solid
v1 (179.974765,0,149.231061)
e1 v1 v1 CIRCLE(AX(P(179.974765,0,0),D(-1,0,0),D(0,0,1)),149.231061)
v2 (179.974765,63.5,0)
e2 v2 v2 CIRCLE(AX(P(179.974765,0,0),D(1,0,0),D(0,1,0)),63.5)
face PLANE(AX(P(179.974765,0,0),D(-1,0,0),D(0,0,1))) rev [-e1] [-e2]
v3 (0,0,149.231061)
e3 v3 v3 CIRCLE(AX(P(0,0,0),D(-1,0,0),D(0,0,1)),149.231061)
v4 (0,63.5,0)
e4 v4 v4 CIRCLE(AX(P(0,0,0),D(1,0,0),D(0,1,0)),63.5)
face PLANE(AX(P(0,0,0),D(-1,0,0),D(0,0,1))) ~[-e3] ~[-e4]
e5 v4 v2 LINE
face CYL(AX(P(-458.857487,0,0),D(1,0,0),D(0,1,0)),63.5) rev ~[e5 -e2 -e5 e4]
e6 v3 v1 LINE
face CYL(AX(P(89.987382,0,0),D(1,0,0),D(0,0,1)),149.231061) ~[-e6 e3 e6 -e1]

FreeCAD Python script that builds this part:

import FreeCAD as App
import Part
import Sketcher
from FreeCAD import Vector
Q = App.Units.Quantity

doc = App.newDocument("Part")
body = doc.addObject("PartDesign::Body", "Body")

# Sketch on XZ plane
sketch1 = body.newObject("Sketcher::SketchObject", "Sketch")
sketch1.AttachmentSupport = (doc.getObject("XZ_Plane"), [""])
sketch1.MapMode = "FlatFace"
sketch1.addGeometry(Part.LineSegment(Vector(0, 149.231061, 0), Vector(0, 0, 0)), False)
sketch1.addGeometry(Part.LineSegment(Vector(0, 0, 0), Vector(179.974765, 0, 0)), False)
sketch1.addGeometry(Part.LineSegment(Vector(179.974765, 0, 0), Vector(179.974765, 149.231061, 0)), False)
sketch1.addGeometry(Part.LineSegment(Vector(179.974765, 149.231061, 0), Vector(0, 149.231061, 0)), False)
sketch1.addConstraint(Sketcher.Constraint("Coincident", 0, 2, 1, 1))
sketch1.addConstraint(Sketcher.Constraint("Coincident", 1, 2, 2, 1))
sketch1.addConstraint(Sketcher.Constraint("Coincident", 2, 2, 3, 1))
sketch1.addConstraint(Sketcher.Constraint("Coincident", 3, 2, 0, 1))
sketch1.addConstraint(Sketcher.Constraint("Vertical", 0))
sketch1.addConstraint(Sketcher.Constraint("Horizontal", 1))
sketch1.addConstraint(Sketcher.Constraint("Vertical", 2))
sketch1.addConstraint(Sketcher.Constraint("Horizontal", 3))
sketch1.addConstraint(Sketcher.Constraint("Coincident", 0, 2, -1, 1))
sketch1.addConstraint(Sketcher.Constraint("DistanceY", 0, 2, 0, 1, 149.231061))
sketch1.addConstraint(Sketcher.Constraint("DistanceX", 1, 1, 1, 2, 179.974765))
revolution = body.newObject("PartDesign::Revolution", "Revolution")
revolution.Profile = sketch1
revolution.ReferenceAxis = (sketch1, ["H_Axis"])
revolution.Angle = 360

# Sketch on YZ plane
sketch2 = body.newObject("Sketcher::SketchObject", "Sketch001")
sketch2.AttachmentSupport = (doc.getObject("YZ_Plane"), [""])
sketch2.MapMode = "FlatFace"
sketch2.addGeometry(Part.Circle(Vector(0, 0, 0), Vector(0, 0, 1), 63.5), False)
sketch2.addConstraint(Sketcher.Constraint("Coincident", 0, 3, -1, 1))
sketch2.addConstraint(Sketcher.Constraint("Diameter", 0, Q("5 in")))
doc.recompute()
hole = body.newObject("PartDesign::Hole", "Hole")
hole.Profile = sketch2
hole.ThreadType = "None"
hole.Diameter = Q("5 in")
hole.DepthType = "ThroughAll"
hole.Reversed = True

doc.recompute()
